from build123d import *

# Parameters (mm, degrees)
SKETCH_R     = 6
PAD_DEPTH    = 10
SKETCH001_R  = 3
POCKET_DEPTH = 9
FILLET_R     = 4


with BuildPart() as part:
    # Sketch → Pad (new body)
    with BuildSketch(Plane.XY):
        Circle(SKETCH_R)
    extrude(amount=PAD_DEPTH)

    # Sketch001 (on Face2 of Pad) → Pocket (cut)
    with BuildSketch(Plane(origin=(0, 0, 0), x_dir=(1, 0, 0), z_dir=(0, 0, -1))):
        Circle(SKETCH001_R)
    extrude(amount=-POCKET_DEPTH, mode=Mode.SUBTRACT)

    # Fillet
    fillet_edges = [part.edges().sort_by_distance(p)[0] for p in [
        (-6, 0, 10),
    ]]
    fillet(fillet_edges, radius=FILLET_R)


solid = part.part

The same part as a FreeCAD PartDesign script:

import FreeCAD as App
import Part
import Sketcher


def edges_at(feature, points):
    """Names of the edges that pass closest to the given points."""
    edges = feature.Shape.Edges
    near = lambda p: min(range(len(edges)), key=lambda i: edges[i].distToShape(Part.Vertex(*p))[0])
    return sorted({f"Edge{near(p) + 1}" for p in points})

doc = App.newDocument("Part")
body = doc.addObject("PartDesign::Body", "Body")

sketch1 = body.newObject("Sketcher::SketchObject", "Sketch")
sketch1.AttachmentSupport = (doc.getObject("XY_Plane"), [""])
sketch1.MapMode = "FlatFace"
sketch1.addGeometry(Part.Circle(App.Vector(0, 0, 0), App.Vector(0, 0, 1), 6), False)
sketch1.addConstraint([
    Sketcher.Constraint("Coincident", 0, 3, -1, 1),
    Sketcher.Constraint("Diameter", 0, 12.0),
])
pad1 = body.newObject("PartDesign::Pad", "Pad")
pad1.Profile = sketch1
pad1.Length = 10

sketch2 = body.newObject("Sketcher::SketchObject", "Sketch001")
sketch2.AttachmentSupport = (doc.getObject("XY_Plane"), [""])
sketch2.MapMode = "FlatFace"
sketch2.addGeometry(Part.Circle(App.Vector(0, 0, 0), App.Vector(0, 0, 1), 3), False)
sketch2.addConstraint([
    Sketcher.Constraint("Coincident", 0, 3, -1, 1),
    Sketcher.Constraint("Diameter", 0, 6.0),
])
pocket1 = body.newObject("PartDesign::Pocket", "Pocket")
pocket1.Profile = sketch2
pocket1.Length = 9
pocket1.Reversed = True
doc.recompute()

fillet = body.newObject("PartDesign::Fillet", "Fillet")
fillet.Base = (pocket1, edges_at(pocket1, [(-6, 0, 10)]))
fillet.Radius = 4

doc.recompute()
